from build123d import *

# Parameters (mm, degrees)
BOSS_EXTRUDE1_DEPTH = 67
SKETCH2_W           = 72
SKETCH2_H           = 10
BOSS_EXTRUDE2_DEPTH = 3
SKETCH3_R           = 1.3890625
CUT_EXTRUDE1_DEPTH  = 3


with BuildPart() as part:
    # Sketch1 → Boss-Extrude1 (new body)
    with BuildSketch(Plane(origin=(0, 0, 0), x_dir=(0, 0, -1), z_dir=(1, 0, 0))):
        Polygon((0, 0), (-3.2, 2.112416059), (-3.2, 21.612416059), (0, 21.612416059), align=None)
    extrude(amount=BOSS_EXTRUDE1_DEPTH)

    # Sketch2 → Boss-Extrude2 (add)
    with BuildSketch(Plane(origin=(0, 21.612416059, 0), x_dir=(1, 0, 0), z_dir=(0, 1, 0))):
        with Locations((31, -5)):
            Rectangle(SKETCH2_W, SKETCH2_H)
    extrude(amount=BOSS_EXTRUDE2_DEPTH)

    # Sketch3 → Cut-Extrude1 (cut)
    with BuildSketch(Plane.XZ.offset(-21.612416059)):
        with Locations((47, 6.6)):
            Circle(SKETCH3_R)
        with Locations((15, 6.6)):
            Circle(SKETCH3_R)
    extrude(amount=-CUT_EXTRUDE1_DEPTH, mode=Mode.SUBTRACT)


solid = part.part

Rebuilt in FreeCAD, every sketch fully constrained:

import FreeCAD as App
import Part
import Sketcher
from FreeCAD import Vector
Q = App.Units.Quantity

doc = App.newDocument("Part")
body = doc.addObject("PartDesign::Body", "Body")

sketch1 = body.newObject("Sketcher::SketchObject", "Sketch")
sketch1.AttachmentSupport = (doc.getObject("YZ_Plane"), [""])
sketch1.MapMode = "FlatFace"
sketch1.addGeometry([
    Part.LineSegment(Vector(2.112416, 3.2, 0), Vector(0, 0, 0)),
    Part.LineSegment(Vector(0, 0, 0), Vector(21.612416, 0, 0)),
    Part.LineSegment(Vector(21.612416, 0, 0), Vector(21.612416, 3.2, 0)),
    Part.LineSegment(Vector(21.612416, 3.2, 0), Vector(2.112416, 3.2, 0)),
], False)
sketch1.addConstraint([
    Sketcher.Constraint("Coincident", 0, 2, 1, 1),
    Sketcher.Constraint("Coincident", 1, 2, 2, 1),
    Sketcher.Constraint("Coincident", 2, 2, 3, 1),
    Sketcher.Constraint("Coincident", 3, 2, 0, 1),
    Sketcher.Constraint("Horizontal", 1),
    Sketcher.Constraint("Vertical", 2),
    Sketcher.Constraint("Horizontal", 3),
    Sketcher.Constraint("Coincident", 0, 2, -1, 1),
    Sketcher.Constraint("DistanceX", 3, 2, 3, 1, Q("19.5 mm")),
    Sketcher.Constraint("DistanceY", 2, 1, 2, 2, Q("3.2 mm")),
    Sketcher.Constraint("Angle", 0, Q("-123.43 deg")),
])
pad1 = body.newObject("PartDesign::Pad", "Pad")
pad1.Profile = sketch1
pad1.Length = 67

sketch2 = body.newObject("Sketcher::SketchObject", "Sketch001")
sketch2.AttachmentSupport = (doc.getObject("XZ_Plane"), [""])
sketch2.MapMode = "FlatFace"
sketch2.AttachmentOffset = App.Placement(Vector(0, 0, -21.612416), App.Rotation())
sketch2.addGeometry([
    Part.LineSegment(Vector(-5, 0, 0), Vector(-5, 10, 0)),
    Part.LineSegment(Vector(-5, 10, 0), Vector(67, 10, 0)),
    Part.LineSegment(Vector(67, 10, 0), Vector(67, 0, 0)),
    Part.LineSegment(Vector(67, 0, 0), Vector(-5, 0, 0)),
], False)
sketch2.addConstraint([
    Sketcher.Constraint("Coincident", 0, 2, 1, 1),
    Sketcher.Constraint("Coincident", 1, 2, 2, 1),
    Sketcher.Constraint("Coincident", 2, 2, 3, 1),
    Sketcher.Constraint("Coincident", 3, 2, 0, 1),
    Sketcher.Constraint("Vertical", 0),
    Sketcher.Constraint("Horizontal", 1),
    Sketcher.Constraint("Vertical", 2),
    Sketcher.Constraint("Horizontal", 3),
    Sketcher.Constraint("PointOnObject", 2, 2, -1),
    Sketcher.Constraint("DistanceX", 1, 1, 1, 2, Q("72 mm")),
    Sketcher.Constraint("DistanceY", 0, 1, 0, 2, Q("10 mm")),
    Sketcher.Constraint("DistanceX", 0, 2, -1, 1, Q("5 mm")),
])
pad2 = body.newObject("PartDesign::Pad", "Pad001")
pad2.Profile = sketch2
pad2.Length = 3
pad2.Reversed = True

sketch3 = body.newObject("Sketcher::SketchObject", "Sketch002")
sketch3.AttachmentSupport = (doc.getObject("XZ_Plane"), [""])
sketch3.MapMode = "FlatFace"
sketch3.AttachmentOffset = App.Placement(Vector(0, 0, -21.612416), App.Rotation())
sketch3.addGeometry([
    Part.Circle(Vector(47, 6.6, 0), Vector(0, 0, 1), 1.389063),
    Part.Circle(Vector(15, 6.6, 0), Vector(0, 0, 1), 1.389063),
], False)
sketch3.addConstraint([
    Sketcher.Constraint("Equal", 0, 1),
    Sketcher.Constraint("Horizontal", 0, 3, 1, 3),
    Sketcher.Constraint("DistanceX", -1, 1, 0, 3, Q("47 mm")),
    Sketcher.Constraint("DistanceX", -1, 1, 1, 3, Q("15 mm")),
    Sketcher.Constraint("DistanceY", -1, 1, 0, 3, Q("6.6 mm")),
    Sketcher.Constraint("Diameter", 0, Q("2.778125 mm")),
])
pocket1 = body.newObject("PartDesign::Pocket", "Pocket")
pocket1.Profile = sketch3
pocket1.Length = 3

doc.recompute()
